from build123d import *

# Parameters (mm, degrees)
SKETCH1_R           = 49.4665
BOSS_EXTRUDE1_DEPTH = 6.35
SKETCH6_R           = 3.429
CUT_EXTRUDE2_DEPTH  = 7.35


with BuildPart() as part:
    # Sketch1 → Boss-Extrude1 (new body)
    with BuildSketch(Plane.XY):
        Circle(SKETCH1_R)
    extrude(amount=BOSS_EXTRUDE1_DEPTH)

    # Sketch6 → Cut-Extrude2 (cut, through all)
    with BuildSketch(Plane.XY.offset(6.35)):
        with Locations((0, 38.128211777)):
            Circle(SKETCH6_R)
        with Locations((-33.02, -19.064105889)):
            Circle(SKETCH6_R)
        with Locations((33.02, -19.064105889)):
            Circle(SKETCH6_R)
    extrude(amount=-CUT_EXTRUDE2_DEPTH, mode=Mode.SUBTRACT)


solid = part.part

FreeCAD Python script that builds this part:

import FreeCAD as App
import Part
import Sketcher
from FreeCAD import Vector
Q = App.Units.Quantity

doc = App.newDocument("Part")
body = doc.addObject("PartDesign::Body", "Body")

# Sketch on XY plane
sketch1 = doc.addObject("Sketcher::SketchObject", "Sketch")
body.addObject(sketch1)
sketch1.AttachmentSupport = (doc.XY_Plane, [""])
sketch1.MapMode = "FlatFace"
sketch1.addGeometry(Part.Circle(Vector(0, 0, 0), Vector(0, 0, 1), 49), False)
sketch1.addConstraint(Sketcher.Constraint("Coincident", 0, 3, -1, 1))
sketch1.addConstraint(Sketcher.Constraint("Diameter", 0, Q("3.895 in")))
pad1 = doc.addObject("PartDesign::Pad", "Pad")
body.addObject(pad1)
pad1.Profile = sketch1
pad1.Length = Q("0.25 in")

# Sketch on XY plane
sketch2 = doc.addObject("Sketcher::SketchObject", "Sketch001")
body.addObject(sketch2)
sketch2.AttachmentSupport = (doc.XY_Plane, [""])
sketch2.MapMode = "FlatFace"
sketch2.AttachmentOffset = App.Placement(Vector(0, 0, 0.25 * 25.4), App.Rotation())
sketch2.addGeometry(Part.Circle(Vector(0, 38.1, 0), Vector(0, 0, 1), 3.4), False)
sketch2.addGeometry(Part.Circle(Vector(-33, -19.1, 0), Vector(0, 0, 1), 3.4), False)
sketch2.addGeometry(Part.Circle(Vector(33, -19.1, 0), Vector(0, 0, 1), 3.4), False)
sketch2.addConstraint(Sketcher.Constraint("Equal", 0, 1))
sketch2.addConstraint(Sketcher.Constraint("Equal", 1, 2))
sketch2.addConstraint(Sketcher.Constraint("Symmetric", 1, 3, 2, 3, -2))
sketch2.addConstraint(Sketcher.Constraint("PointOnObject", 0, 3, -2))
sketch2.addConstraint(Sketcher.Constraint("Diameter", 0, Q("0.27 in")))
sketch2.addConstraint(Sketcher.Constraint("DistanceX", 1, 3, -1, 1, Q("1.3 in")))
sketch2.addConstraint(Sketcher.Constraint("DistanceY", -1, 1, 0, 3, Q("38.128212 mm")))
sketch2.addConstraint(Sketcher.Constraint("DistanceY", 1, 3, -1, 1, Q("19.064106 mm")))
pocket1 = doc.addObject("PartDesign::Pocket", "Pocket")
body.addObject(pocket1)
pocket1.Profile = sketch2
pocket1.Type = "ThroughAll"

doc.recompute()
